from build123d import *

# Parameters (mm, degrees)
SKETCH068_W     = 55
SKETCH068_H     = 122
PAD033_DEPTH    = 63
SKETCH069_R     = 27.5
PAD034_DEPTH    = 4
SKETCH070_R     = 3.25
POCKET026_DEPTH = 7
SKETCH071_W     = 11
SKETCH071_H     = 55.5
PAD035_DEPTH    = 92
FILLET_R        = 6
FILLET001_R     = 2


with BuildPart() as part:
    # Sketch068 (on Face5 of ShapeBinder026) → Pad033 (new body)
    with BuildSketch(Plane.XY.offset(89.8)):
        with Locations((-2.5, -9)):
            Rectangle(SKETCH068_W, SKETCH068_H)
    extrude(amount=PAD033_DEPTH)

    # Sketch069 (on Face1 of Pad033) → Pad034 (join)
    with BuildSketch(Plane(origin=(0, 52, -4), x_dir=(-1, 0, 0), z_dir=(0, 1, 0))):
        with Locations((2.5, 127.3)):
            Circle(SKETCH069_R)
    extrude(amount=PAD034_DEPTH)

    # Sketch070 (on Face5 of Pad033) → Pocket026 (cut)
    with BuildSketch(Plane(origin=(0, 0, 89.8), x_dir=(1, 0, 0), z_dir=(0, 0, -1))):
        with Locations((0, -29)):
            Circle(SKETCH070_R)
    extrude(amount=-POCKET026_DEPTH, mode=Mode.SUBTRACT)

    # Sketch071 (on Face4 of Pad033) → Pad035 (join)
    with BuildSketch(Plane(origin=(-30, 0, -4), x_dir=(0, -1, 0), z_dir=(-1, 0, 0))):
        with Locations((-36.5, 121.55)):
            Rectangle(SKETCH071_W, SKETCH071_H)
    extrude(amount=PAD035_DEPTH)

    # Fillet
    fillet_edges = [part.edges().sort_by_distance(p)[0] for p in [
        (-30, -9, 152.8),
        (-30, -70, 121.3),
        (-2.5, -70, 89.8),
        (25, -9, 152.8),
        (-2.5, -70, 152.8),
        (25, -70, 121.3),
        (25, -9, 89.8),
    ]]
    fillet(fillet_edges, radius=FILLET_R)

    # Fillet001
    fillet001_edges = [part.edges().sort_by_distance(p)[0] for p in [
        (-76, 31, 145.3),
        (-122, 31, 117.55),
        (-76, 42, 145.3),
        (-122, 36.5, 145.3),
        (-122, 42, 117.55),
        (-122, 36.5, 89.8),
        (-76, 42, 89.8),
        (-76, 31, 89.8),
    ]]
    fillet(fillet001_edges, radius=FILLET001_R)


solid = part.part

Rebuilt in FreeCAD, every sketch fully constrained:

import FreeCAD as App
import Part
import Sketcher

V = App.Vector


def edges_at(feature, points):
    """Names of the edges that pass closest to the given points."""
    edges = feature.Shape.Edges
    near = lambda p: min(range(len(edges)), key=lambda i: edges[i].distToShape(Part.Vertex(*p))[0])
    return sorted({f"Edge{near(p) + 1}" for p in points})


def add_polygon(sketch, points):
    """Adds a closed chain of lines whose ends are joined by coincident constraints."""
    first, n = sketch.GeometryCount, len(points)
    for a, b in zip(points, points[1:] + points[:1]):
        sketch.addGeometry(Part.LineSegment(App.Vector(*a, 0), App.Vector(*b, 0)), False)
    for i in range(n):
        sketch.addConstraint(Sketcher.Constraint("Coincident", first + i, 2, first + (i + 1) % n, 1))

doc = App.newDocument("Part")
params = doc.addObject("Spreadsheet::Sheet", "Params")
for row, (alias, value) in enumerate([
    ("sketch1_width", "55 mm"),
    ("sketch1_height", "122 mm"),
    ("pad1_length", "63 mm"),
    ("sketch2_diameter", "55 mm"),
    ("pad2_length", "4 mm"),
    ("sketch3_diameter", "6.5 mm"),
    ("pocket1_length", "7 mm"),
    ("sketch4_width", "11 mm"),
    ("sketch4_height", "55.5 mm"),
    ("pad3_length", "92 mm"),
    ("fillet_radius", "6 mm"),
    ("fillet2_radius", "2 mm"),
], start=1):
    params.set(f"A{row}", alias)
    params.set(f"B{row}", "=" + value)
    params.setAlias(f"B{row}", alias)

body = doc.addObject("PartDesign::Body", "Body")

# Sketch on XY plane
sketch1 = doc.addObject("Sketcher::SketchObject", "Sketch")
body.addObject(sketch1)
sketch1.AttachmentSupport = (doc.XY_Plane, [""])
sketch1.MapMode = "FlatFace"
sketch1.AttachmentOffset = App.Placement(V(0, 0, 89.8), App.Rotation())
add_polygon(sketch1, [(-30, 52), (-30, -70), (25, -70), (25, 52)])  # lines 0-3
sketch1.addConstraint([
    Sketcher.Constraint("Vertical", 0),
    Sketcher.Constraint("Horizontal", 1),
    Sketcher.Constraint("Vertical", 2),
    Sketcher.Constraint("Horizontal", 3),
    Sketcher.Constraint("DistanceX", 1, 1, 1, 2, 55.0),
    Sketcher.Constraint("DistanceY", 0, 2, 0, 1, 122.0),
    Sketcher.Constraint("DistanceX", 0, 2, -1, 1, 30.0),
    Sketcher.Constraint("DistanceY", 0, 2, -1, 1, 70.0),
])
sketch1.setExpression("Constraints[8]", "Params.sketch1_width")
sketch1.setExpression("Constraints[9]", "Params.sketch1_height")
pad1 = doc.addObject("PartDesign::Pad", "Pad")
body.addObject(pad1)
pad1.Profile = sketch1
pad1.setExpression("Length", "Params.pad1_length")

# Sketch on XZ plane
sketch2 = doc.addObject("Sketcher::SketchObject", "Sketch001")
body.addObject(sketch2)
sketch2.AttachmentSupport = (doc.XZ_Plane, [""])
sketch2.MapMode = "FlatFace"
sketch2.AttachmentOffset = App.Placement(V(0, 0, -52), App.Rotation())
sketch2.addGeometry(Part.Circle(V(-2, 123, 0), V(0, 0, 1), 28), False)
sketch2.addConstraint([
    Sketcher.Constraint("Diameter", 0, 55.0),
    Sketcher.Constraint("DistanceX", 0, 3, -1, 1, 2.5),
    Sketcher.Constraint("DistanceY", -1, 1, 0, 3, 123.3),
])
sketch2.setExpression("Constraints[0]", "Params.sketch2_diameter")
pad2 = doc.addObject("PartDesign::Pad", "Pad001")
body.addObject(pad2)
pad2.Profile = sketch2
pad2.setExpression("Length", "Params.pad2_length")
pad2.Reversed = True

# Sketch on XY plane
sketch3 = doc.addObject("Sketcher::SketchObject", "Sketch002")
body.addObject(sketch3)
sketch3.AttachmentSupport = (doc.XY_Plane, [""])
sketch3.MapMode = "FlatFace"
sketch3.AttachmentOffset = App.Placement(V(0, 0, 89.8), App.Rotation())
sketch3.addGeometry(Part.Circle(V(0, 29, 0), V(0, 0, 1), 3.2), False)
sketch3.addConstraint([
    Sketcher.Constraint("PointOnObject", 0, 3, -2),
    Sketcher.Constraint("Diameter", 0, 6.5),
    Sketcher.Constraint("DistanceY", -1, 1, 0, 3, 29.0),
])
sketch3.setExpression("Constraints[1]", "Params.sketch3_diameter")
pocket1 = doc.addObject("PartDesign::Pocket", "Pocket")
body.addObject(pocket1)
pocket1.Profile = sketch3
pocket1.setExpression("Length", "Params.pocket1_length")
pocket1.Reversed = True

# Sketch on YZ plane
sketch4 = doc.addObject("Sketcher::SketchObject", "Sketch003")
body.addObject(sketch4)
sketch4.AttachmentSupport = (doc.YZ_Plane, [""])
sketch4.MapMode = "FlatFace"
sketch4.AttachmentOffset = App.Placement(V(0, 0, -30), App.Rotation())
add_polygon(sketch4, [(42, 145), (42, 90), (31, 90), (31, 145)])  # lines 0-3
sketch4.addConstraint([
    Sketcher.Constraint("Vertical", 0),
    Sketcher.Constraint("Horizontal", 1),
    Sketcher.Constraint("Vertical", 2),
    Sketcher.Constraint("Horizontal", 3),
    Sketcher.Constraint("DistanceX", 1, 2, 1, 1, 11.0),
    Sketcher.Constraint("DistanceY", 0, 2, 0, 1, 55.5),
    Sketcher.Constraint("DistanceX", -1, 1, 0, 2, 42.0),
    Sketcher.Constraint("DistanceY", -1, 1, 0, 2, 89.8),
])
sketch4.setExpression("Constraints[8]", "Params.sketch4_width")
sketch4.setExpression("Constraints[9]", "Params.sketch4_height")
pad3 = doc.addObject("PartDesign::Pad", "Pad002")
body.addObject(pad3)
pad3.Profile = sketch4
pad3.setExpression("Length", "Params.pad3_length")
pad3.Reversed = True
doc.recompute()

fillet = doc.addObject("PartDesign::Fillet", "Fillet")
body.addObject(fillet)
fillet.Base = (pad3, edges_at(pad3, [
    (-30, -9, 152.8),
    (-30, -70, 121.3),
    (-2.5, -70, 89.8),
    (25, -9, 152.8),
    (-2.5, -70, 152.8),
    (25, -70, 121.3),
    (25, -9, 89.8),
]))
fillet.setExpression("Radius", "Params.fillet_radius")
doc.recompute()

fillet2 = doc.addObject("PartDesign::Fillet", "Fillet001")
body.addObject(fillet2)
fillet2.Base = (fillet, edges_at(fillet, [
    (-76, 31, 145.3),
    (-122, 31, 117.55),
    (-76, 42, 145.3),
    (-122, 36.5, 145.3),
    (-122, 42, 117.55),
    (-122, 36.5, 89.8),
    (-76, 42, 89.8),
    (-76, 31, 89.8),
]))
fillet2.setExpression("Radius", "Params.fillet2_radius")

doc.recompute()
